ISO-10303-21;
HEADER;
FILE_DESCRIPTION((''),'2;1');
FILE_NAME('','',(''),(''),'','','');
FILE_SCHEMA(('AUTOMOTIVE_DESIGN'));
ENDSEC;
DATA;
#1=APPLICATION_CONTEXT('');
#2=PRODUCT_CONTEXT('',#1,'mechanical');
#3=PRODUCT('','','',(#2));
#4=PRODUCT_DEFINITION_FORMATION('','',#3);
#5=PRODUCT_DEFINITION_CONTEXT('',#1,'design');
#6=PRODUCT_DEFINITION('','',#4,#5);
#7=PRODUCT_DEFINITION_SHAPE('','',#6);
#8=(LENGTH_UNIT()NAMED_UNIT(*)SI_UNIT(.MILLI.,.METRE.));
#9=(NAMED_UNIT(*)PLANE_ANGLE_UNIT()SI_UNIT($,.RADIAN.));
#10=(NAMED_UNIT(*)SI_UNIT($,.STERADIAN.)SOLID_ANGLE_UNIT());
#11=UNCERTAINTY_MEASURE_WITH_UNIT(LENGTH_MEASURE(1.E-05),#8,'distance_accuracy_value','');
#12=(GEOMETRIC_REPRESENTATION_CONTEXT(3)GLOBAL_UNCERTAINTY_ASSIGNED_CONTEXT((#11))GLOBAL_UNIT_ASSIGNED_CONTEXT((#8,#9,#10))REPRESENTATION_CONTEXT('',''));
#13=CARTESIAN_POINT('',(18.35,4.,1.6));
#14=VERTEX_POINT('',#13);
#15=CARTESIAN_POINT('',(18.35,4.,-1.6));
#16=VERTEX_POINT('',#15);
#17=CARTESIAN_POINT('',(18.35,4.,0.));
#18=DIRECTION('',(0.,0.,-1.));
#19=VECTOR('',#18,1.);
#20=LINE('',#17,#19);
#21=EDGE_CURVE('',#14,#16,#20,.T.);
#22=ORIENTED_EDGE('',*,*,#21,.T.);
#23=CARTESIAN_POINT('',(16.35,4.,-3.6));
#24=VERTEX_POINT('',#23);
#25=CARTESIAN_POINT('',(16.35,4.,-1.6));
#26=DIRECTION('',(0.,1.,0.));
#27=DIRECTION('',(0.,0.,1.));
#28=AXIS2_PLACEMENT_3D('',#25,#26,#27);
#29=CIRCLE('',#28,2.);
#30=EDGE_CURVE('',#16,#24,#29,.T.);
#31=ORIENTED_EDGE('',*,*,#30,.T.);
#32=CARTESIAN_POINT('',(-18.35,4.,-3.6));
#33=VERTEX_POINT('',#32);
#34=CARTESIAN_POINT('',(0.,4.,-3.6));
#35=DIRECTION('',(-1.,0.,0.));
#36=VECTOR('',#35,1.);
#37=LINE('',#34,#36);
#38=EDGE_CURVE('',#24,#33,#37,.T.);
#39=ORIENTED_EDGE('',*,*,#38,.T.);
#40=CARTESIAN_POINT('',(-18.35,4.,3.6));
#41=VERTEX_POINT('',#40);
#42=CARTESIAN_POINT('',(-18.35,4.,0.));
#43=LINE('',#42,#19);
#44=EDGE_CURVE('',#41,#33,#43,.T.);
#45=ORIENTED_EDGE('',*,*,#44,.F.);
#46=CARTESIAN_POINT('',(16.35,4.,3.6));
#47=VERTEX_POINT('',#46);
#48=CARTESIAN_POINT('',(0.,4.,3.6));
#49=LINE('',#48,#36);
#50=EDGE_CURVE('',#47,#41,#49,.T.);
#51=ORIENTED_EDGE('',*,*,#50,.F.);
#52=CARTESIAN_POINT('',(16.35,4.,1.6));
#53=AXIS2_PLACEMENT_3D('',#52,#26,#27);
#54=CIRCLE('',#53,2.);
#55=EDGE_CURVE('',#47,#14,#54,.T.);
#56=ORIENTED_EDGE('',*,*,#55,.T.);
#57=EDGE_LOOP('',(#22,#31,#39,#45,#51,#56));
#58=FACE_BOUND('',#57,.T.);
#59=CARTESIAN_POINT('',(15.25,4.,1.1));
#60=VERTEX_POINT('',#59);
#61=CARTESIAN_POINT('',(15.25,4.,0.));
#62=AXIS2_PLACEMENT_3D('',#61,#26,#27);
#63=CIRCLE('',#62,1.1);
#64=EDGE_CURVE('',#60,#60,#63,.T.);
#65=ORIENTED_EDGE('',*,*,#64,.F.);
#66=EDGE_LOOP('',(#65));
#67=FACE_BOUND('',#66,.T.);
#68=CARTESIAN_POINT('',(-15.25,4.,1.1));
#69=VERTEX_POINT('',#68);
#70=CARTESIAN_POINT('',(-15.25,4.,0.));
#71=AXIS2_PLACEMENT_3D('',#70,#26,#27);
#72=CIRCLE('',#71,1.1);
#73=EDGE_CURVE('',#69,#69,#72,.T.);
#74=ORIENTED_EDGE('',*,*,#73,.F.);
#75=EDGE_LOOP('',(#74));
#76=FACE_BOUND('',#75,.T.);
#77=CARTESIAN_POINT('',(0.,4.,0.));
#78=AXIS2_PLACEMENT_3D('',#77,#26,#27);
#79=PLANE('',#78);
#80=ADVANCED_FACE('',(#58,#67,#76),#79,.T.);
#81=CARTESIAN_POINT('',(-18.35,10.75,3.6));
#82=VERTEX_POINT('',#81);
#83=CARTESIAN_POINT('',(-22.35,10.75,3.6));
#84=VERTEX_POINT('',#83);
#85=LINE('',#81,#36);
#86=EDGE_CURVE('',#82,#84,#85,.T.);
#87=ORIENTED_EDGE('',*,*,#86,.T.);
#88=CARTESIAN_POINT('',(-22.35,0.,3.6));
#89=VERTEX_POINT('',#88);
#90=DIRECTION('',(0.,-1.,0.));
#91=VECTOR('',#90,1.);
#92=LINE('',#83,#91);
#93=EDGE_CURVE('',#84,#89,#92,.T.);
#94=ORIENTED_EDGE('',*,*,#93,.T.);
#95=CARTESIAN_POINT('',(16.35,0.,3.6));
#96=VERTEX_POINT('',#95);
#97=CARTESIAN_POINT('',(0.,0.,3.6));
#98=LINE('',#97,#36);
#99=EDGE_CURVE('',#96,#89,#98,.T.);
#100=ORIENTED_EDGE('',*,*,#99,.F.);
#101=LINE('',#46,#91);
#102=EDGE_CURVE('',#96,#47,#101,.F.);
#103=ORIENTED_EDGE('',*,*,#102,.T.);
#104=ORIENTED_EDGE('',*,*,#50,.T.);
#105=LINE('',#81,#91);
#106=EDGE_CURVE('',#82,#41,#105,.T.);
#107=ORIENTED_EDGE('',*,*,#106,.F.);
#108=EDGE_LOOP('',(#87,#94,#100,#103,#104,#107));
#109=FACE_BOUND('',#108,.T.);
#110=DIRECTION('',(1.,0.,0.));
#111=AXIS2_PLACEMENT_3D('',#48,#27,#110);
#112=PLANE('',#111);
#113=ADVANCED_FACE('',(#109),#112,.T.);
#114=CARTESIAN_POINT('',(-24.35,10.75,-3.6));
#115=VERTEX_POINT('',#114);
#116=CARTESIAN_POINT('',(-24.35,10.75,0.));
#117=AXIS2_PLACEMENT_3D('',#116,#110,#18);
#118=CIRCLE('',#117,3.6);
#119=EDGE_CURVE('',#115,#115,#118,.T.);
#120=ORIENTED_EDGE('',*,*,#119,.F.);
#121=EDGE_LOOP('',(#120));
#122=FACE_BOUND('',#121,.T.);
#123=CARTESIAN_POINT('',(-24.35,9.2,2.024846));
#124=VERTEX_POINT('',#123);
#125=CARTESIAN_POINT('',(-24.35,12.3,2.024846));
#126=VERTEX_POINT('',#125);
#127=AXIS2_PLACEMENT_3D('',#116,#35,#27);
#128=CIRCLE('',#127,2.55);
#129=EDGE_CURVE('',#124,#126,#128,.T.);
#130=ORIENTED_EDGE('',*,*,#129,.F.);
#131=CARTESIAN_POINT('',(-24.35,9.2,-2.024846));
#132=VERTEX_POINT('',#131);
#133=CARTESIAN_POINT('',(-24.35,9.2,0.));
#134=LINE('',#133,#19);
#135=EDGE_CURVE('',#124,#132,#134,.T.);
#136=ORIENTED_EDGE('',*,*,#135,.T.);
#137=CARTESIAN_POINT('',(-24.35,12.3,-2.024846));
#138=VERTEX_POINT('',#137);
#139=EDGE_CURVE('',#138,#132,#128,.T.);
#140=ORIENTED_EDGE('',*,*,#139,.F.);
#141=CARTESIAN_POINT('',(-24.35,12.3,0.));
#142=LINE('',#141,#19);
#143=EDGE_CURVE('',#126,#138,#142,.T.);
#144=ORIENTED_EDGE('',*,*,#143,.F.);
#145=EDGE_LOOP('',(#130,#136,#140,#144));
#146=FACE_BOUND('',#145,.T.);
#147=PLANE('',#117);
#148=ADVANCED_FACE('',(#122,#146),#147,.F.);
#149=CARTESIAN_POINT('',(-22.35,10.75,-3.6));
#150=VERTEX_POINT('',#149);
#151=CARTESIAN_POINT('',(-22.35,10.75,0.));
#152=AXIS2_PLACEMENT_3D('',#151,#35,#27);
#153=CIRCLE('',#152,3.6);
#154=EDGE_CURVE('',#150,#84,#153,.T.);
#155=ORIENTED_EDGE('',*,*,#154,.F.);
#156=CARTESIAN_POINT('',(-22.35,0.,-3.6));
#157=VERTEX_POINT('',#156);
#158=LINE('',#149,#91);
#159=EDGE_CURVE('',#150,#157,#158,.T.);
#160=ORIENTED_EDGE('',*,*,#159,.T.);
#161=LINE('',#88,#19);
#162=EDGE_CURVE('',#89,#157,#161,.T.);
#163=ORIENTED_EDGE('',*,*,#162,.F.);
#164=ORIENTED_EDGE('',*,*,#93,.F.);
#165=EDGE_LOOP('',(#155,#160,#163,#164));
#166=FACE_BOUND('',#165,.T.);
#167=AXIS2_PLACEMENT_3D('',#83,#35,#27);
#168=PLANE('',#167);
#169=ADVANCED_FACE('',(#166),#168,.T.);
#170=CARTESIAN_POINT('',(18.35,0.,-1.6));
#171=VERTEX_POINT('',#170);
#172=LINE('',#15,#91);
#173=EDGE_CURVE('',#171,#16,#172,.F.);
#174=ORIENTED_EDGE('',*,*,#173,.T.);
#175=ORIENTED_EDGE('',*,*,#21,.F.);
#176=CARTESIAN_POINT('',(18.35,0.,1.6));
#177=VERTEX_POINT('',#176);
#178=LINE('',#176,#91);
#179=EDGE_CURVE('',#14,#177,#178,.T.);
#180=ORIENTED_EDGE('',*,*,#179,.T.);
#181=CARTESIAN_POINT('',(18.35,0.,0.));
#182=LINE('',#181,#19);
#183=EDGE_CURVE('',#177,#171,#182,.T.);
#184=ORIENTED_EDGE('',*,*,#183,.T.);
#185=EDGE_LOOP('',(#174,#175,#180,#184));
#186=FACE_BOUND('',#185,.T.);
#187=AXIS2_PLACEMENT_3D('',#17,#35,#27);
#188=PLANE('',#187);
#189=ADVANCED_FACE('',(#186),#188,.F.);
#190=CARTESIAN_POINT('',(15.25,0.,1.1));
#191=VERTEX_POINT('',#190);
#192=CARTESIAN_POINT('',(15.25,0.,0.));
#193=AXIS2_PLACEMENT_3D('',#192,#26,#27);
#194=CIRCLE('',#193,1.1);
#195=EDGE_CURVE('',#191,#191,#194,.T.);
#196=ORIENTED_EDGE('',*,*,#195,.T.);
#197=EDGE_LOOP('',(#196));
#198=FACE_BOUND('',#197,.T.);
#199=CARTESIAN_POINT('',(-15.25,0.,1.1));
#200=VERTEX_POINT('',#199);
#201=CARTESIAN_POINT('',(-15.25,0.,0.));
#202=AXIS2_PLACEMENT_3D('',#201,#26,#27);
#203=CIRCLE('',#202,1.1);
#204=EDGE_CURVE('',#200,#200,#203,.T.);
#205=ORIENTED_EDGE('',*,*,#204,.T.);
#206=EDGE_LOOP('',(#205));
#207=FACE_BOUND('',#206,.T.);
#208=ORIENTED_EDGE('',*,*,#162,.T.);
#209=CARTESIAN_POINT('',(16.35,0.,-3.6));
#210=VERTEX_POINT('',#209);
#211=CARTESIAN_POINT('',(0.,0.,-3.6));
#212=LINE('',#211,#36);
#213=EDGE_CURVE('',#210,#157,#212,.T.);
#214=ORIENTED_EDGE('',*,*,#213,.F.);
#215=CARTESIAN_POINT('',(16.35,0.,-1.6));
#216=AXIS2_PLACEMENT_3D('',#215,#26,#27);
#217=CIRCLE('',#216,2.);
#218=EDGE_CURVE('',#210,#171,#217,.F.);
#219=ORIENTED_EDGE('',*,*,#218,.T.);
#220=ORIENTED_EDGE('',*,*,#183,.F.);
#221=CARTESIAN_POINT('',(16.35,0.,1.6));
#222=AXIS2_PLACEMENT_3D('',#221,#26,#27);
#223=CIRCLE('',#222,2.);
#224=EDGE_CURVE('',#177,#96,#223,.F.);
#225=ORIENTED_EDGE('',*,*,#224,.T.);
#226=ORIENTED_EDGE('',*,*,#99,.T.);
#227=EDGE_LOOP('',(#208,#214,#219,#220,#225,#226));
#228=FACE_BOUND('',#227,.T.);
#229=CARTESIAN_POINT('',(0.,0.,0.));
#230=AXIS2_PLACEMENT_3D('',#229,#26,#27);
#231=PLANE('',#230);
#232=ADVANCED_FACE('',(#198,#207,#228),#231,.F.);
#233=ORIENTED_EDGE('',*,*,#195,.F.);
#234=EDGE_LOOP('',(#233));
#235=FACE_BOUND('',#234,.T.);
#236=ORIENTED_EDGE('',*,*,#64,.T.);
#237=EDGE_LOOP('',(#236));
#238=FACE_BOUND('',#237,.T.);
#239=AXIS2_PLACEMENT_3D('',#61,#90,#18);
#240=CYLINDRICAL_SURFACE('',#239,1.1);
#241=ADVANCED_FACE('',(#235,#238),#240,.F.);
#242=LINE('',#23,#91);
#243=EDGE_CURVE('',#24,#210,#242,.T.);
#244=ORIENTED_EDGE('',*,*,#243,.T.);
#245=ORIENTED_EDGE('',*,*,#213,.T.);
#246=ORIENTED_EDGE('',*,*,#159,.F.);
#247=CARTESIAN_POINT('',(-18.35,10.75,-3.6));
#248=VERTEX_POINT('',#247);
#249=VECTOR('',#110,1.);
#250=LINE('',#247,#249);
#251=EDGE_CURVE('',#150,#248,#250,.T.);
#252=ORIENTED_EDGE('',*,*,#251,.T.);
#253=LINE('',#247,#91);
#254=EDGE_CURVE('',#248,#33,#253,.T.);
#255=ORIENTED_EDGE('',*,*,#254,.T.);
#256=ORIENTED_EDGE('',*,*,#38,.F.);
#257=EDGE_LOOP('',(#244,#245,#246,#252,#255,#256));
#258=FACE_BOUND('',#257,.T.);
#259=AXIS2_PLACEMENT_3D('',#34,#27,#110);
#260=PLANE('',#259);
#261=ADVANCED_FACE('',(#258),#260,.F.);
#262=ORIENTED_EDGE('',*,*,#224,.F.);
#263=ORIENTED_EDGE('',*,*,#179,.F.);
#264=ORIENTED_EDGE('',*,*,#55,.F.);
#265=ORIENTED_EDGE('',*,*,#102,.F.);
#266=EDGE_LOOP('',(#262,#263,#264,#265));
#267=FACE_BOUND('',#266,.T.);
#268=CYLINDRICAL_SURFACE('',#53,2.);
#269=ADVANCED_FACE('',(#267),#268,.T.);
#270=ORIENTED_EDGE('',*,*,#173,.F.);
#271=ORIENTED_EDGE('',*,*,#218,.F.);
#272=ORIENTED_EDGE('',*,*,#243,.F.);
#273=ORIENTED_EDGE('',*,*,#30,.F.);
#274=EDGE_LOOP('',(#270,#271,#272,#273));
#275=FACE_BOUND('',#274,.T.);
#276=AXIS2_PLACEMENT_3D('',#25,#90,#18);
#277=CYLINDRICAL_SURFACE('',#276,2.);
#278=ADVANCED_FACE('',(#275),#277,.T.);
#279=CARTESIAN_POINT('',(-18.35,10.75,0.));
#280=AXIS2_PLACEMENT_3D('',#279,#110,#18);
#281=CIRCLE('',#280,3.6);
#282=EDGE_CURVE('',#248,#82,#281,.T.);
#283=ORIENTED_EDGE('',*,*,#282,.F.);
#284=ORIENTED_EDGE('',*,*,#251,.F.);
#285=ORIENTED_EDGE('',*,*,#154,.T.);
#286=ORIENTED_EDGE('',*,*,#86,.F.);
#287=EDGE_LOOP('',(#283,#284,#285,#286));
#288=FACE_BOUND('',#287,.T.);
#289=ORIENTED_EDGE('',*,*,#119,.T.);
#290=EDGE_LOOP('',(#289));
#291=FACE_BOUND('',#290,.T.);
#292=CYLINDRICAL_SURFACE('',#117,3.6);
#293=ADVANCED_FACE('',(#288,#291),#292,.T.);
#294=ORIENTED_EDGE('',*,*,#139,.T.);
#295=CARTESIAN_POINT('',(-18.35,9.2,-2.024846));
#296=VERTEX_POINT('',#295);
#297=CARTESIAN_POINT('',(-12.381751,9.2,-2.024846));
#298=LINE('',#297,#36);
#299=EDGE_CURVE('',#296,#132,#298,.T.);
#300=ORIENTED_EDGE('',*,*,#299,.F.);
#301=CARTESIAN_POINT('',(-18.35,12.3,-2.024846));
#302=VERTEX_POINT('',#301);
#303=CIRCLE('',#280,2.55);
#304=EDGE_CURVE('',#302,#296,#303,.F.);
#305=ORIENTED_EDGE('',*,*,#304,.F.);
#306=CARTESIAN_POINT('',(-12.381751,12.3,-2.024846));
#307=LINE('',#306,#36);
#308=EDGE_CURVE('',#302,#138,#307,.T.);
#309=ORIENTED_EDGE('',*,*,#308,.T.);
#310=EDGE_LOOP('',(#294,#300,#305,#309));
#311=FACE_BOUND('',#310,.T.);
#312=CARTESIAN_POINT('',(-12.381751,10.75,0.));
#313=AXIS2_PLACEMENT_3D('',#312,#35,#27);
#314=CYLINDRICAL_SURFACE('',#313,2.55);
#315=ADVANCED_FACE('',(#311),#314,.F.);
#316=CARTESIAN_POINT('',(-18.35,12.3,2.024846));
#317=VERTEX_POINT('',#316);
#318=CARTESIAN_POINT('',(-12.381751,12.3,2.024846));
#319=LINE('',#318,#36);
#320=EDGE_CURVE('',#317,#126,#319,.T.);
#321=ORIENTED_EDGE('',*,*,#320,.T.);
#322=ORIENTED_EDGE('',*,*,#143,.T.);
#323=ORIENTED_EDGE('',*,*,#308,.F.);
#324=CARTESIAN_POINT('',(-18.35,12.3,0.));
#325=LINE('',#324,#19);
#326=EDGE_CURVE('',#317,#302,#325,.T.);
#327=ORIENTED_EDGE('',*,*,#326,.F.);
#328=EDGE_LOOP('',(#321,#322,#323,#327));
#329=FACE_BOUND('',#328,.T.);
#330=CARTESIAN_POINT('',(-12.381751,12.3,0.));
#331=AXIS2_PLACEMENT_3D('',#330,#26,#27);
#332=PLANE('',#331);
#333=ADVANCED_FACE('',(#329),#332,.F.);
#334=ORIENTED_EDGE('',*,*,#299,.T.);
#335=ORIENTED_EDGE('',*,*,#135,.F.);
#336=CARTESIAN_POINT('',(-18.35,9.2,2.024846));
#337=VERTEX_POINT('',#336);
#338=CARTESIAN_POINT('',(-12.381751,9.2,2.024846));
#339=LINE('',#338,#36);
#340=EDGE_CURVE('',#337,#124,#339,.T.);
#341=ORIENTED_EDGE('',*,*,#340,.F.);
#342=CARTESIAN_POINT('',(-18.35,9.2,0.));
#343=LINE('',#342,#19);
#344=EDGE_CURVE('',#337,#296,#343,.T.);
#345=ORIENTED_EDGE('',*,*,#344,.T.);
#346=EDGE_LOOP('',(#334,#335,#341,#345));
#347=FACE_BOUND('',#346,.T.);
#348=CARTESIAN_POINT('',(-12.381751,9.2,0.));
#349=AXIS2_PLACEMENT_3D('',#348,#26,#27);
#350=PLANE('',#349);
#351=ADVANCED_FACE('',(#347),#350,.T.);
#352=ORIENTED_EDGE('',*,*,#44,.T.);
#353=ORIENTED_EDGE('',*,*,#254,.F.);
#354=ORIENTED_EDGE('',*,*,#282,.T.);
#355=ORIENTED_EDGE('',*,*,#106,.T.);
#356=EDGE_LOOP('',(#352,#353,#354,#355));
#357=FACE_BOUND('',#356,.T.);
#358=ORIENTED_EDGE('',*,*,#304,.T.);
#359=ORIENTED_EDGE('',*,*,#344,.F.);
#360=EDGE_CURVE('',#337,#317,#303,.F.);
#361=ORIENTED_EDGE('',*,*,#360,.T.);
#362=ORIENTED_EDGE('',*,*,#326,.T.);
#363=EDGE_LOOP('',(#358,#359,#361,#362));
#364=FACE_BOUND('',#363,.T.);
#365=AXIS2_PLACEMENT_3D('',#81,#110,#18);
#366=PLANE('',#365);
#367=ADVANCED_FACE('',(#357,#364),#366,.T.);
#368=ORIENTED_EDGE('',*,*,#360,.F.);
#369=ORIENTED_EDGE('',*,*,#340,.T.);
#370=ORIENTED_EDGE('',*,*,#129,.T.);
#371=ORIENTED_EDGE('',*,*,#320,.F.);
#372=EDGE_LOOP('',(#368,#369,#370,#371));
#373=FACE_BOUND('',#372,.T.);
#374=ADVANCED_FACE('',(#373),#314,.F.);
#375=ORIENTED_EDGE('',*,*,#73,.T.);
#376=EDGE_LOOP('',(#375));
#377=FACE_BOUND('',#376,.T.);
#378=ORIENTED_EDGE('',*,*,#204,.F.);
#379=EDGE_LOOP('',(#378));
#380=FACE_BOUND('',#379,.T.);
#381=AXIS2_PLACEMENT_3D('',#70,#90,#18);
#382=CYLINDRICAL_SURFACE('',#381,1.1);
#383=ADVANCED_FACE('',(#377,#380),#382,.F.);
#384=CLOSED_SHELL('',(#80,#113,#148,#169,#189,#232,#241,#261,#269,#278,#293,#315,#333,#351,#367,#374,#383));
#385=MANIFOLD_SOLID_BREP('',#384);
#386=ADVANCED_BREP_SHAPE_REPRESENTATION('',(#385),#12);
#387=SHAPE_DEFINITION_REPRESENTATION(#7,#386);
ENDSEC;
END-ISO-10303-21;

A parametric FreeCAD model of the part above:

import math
import FreeCAD as App
import Part
import Sketcher
Q = App.Units.Quantity


def edges_at(feature, points):
    """Names of the edges that pass closest to the given points."""
    edges = feature.Shape.Edges
    near = lambda p: min(range(len(edges)), key=lambda i: edges[i].distToShape(Part.Vertex(*p))[0])
    return sorted({f"Edge{near(p) + 1}" for p in points})

doc = App.newDocument("Part")
body = doc.addObject("PartDesign::Body", "Body")

sketch1 = doc.addObject("Sketcher::SketchObject", "Sketch")
body.addObject(sketch1)
sketch1.AttachmentSupport = (doc.XZ_Plane, [""])
sketch1.MapMode = "FlatFace"
sketch1.addGeometry(Part.LineSegment(App.Vector(-18.4, -3.6, 0), App.Vector(-18.4, 3.6, 0)), False)
sketch1.addGeometry(Part.LineSegment(App.Vector(-18.4, 3.6, 0), App.Vector(18.4, 3.6, 0)), False)
sketch1.addGeometry(Part.LineSegment(App.Vector(18.4, 3.6, 0), App.Vector(18.4, -3.6, 0)), False)
sketch1.addGeometry(Part.LineSegment(App.Vector(18.4, -3.6, 0), App.Vector(-18.4, -3.6, 0)), False)
sketch1.addGeometry(Part.Circle(App.Vector(-15.2, 0, 0), App.Vector(0, 0, 1), 1.1), False)
sketch1.addGeometry(Part.Circle(App.Vector(15.2, 0, 0), App.Vector(0, 0, 1), 1.1), False)
sketch1.addConstraint(Sketcher.Constraint("Coincident", 0, 2, 1, 1))
sketch1.addConstraint(Sketcher.Constraint("Coincident", 1, 2, 2, 1))
sketch1.addConstraint(Sketcher.Constraint("Coincident", 2, 2, 3, 1))
sketch1.addConstraint(Sketcher.Constraint("Coincident", 3, 2, 0, 1))
sketch1.addConstraint(Sketcher.Constraint("Vertical", 0))
sketch1.addConstraint(Sketcher.Constraint("Horizontal", 1))
sketch1.addConstraint(Sketcher.Constraint("Vertical", 2))
sketch1.addConstraint(Sketcher.Constraint("Horizontal", 3))
sketch1.addConstraint(Sketcher.Constraint("Equal", 4, 5))
sketch1.addConstraint(Sketcher.Constraint("Symmetric", 4, 3, 5, 3, -1, 1))
sketch1.addConstraint(Sketcher.Constraint("Symmetric", 0, 2, 2, 2, -1, 1))
sketch1.addConstraint(Sketcher.Constraint("PointOnObject", 4, 3, -1))
sketch1.addConstraint(Sketcher.Constraint("Diameter", 4, Q("2.2 mm")))
sketch1.addConstraint(Sketcher.Constraint("DistanceX", 1, 1, 1, 2, Q("36.7 mm")))
sketch1.addConstraint(Sketcher.Constraint("DistanceY", 0, 1, 0, 2, Q("7.2 mm")))
sketch1.addConstraint(Sketcher.Constraint("DistanceX", 4, 3, 5, 3, Q("30.5 mm")))
pad1 = doc.addObject("PartDesign::Pad", "Pad")
body.addObject(pad1)
pad1.Profile = sketch1
pad1.Length = 4
pad1.Reversed = True

sketch2 = doc.addObject("Sketcher::SketchObject", "Sketch001")
body.addObject(sketch2)
sketch2.AttachmentSupport = (doc.XZ_Plane, [""])
sketch2.MapMode = "FlatFace"
sketch2.addGeometry(Part.LineSegment(App.Vector(-22.4, 3.6, 0), App.Vector(-22.4, -3.6, 0)), False)
sketch2.addGeometry(Part.LineSegment(App.Vector(-22.4, -3.6, 0), App.Vector(-18.4, -3.6, 0)), False)
sketch2.addGeometry(Part.LineSegment(App.Vector(-18.4, -3.6, 0), App.Vector(-18.4, 3.6, 0)), False)
sketch2.addGeometry(Part.LineSegment(App.Vector(-18.4, 3.6, 0), App.Vector(-22.4, 3.6, 0)), False)
sketch2.addConstraint(Sketcher.Constraint("Coincident", 0, 2, 1, 1))
sketch2.addConstraint(Sketcher.Constraint("Coincident", 1, 2, 2, 1))
sketch2.addConstraint(Sketcher.Constraint("Coincident", 2, 2, 3, 1))
sketch2.addConstraint(Sketcher.Constraint("Coincident", 3, 2, 0, 1))
sketch2.addConstraint(Sketcher.Constraint("Vertical", 0))
sketch2.addConstraint(Sketcher.Constraint("Horizontal", 1))
sketch2.addConstraint(Sketcher.Constraint("Vertical", 2))
sketch2.addConstraint(Sketcher.Constraint("Horizontal", 3))
sketch2.addConstraint(Sketcher.Constraint("DistanceX", 1, 1, 1, 2, Q("4 mm")))
sketch2.addConstraint(Sketcher.Constraint("DistanceY", 0, 2, 0, 1, Q("7.2 mm")))
sketch2.addConstraint(Sketcher.Constraint("DistanceY", 0, 2, -1, 1, Q("3.6 mm")))
sketch2.addConstraint(Sketcher.Constraint("DistanceX", 0, 2, -1, 1, Q("22.35 mm")))
pad2 = doc.addObject("PartDesign::Pad", "Pad001")
body.addObject(pad2)
pad2.Profile = sketch2
pad2.Length = 10.75
pad2.Reversed = True

sketch3 = doc.addObject("Sketcher::SketchObject", "Sketch002")
body.addObject(sketch3)
sketch3.AttachmentSupport = (doc.YZ_Plane, [""])
sketch3.MapMode = "FlatFace"
sketch3.AttachmentOffset = App.Placement(App.Vector(0, 0, -18.35), App.Rotation())
sketch3.addGeometry(Part.Circle(App.Vector(10.8, 0, 0), App.Vector(0, 0, 1), 3.6), False)
sketch3.addConstraint(Sketcher.Constraint("PointOnObject", 0, 3, -1))
sketch3.addConstraint(Sketcher.Constraint("Diameter", 0, Q("7.2 mm")))
sketch3.addConstraint(Sketcher.Constraint("DistanceX", -1, 1, 0, 3, Q("10.75 mm")))
pad3 = doc.addObject("PartDesign::Pad", "Pad002")
body.addObject(pad3)
pad3.Profile = sketch3
pad3.Length = 6
pad3.Reversed = True
doc.recompute()

fillet = doc.addObject("PartDesign::Fillet", "Fillet")
body.addObject(fillet)
fillet.Base = (pad3, edges_at(pad3, [(18.35, 2, -3.6), (18.35, 2, 3.6)]))
fillet.Radius = 2

sketch4 = doc.addObject("Sketcher::SketchObject", "Sketch003")
body.addObject(sketch4)
sketch4.AttachmentSupport = (doc.YZ_Plane, [""])
sketch4.MapMode = "FlatFace"
sketch4.AttachmentOffset = App.Placement(App.Vector(0, 0, -24.35), App.Rotation())
sketch4.addGeometry(Part.ArcOfCircle(Part.Circle(App.Vector(10.8, 0, 0), App.Vector(0, 0, 1), 2.5), math.radians(-127), math.radians(-53)), False)
sketch4.addGeometry(Part.LineSegment(App.Vector(9.2, -2, 0), App.Vector(9.2, 2, 0)), False)
sketch4.addGeometry(Part.ArcOfCircle(Part.Circle(App.Vector(10.7, 0, 0), App.Vector(0, 0, 1), 2.5), math.radians(90), math.radians(127)), False)
sketch4.addGeometry(Part.ArcOfCircle(Part.Circle(App.Vector(10.8, 0, 0), App.Vector(0, 0, 1), 2.5), math.radians(53), math.radians(90)), False)
sketch4.addGeometry(Part.LineSegment(App.Vector(12.3, 2, 0), App.Vector(12.3, -2, 0)), False)
sketch4.addConstraint(Sketcher.Constraint("Coincident", 0, 1, 1, 1))
sketch4.addConstraint(Sketcher.Constraint("Coincident", 1, 2, 2, 2))
sketch4.addConstraint(Sketcher.Constraint("Tangent", 2, 1, 3, 2))
sketch4.addConstraint(Sketcher.Constraint("Coincident", 3, 1, 4, 1))
sketch4.addConstraint(Sketcher.Constraint("Coincident", 4, 2, 0, 2))
sketch4.addConstraint(Sketcher.Constraint("Vertical", 1))
sketch4.addConstraint(Sketcher.Constraint("Vertical", 4))
sketch4.addConstraint(Sketcher.Constraint("Coincident", 2, 3, 0, 3))
sketch4.addConstraint(Sketcher.Constraint("Equal", 0, 2))
sketch4.addConstraint(Sketcher.Constraint("Equal", 2, 3))
sketch4.addConstraint(Sketcher.Constraint("PointOnObject", 0, 3, -1))
sketch4.addConstraint(Sketcher.Constraint("Horizontal", 1, 2, 3, 1))
sketch4.addConstraint(Sketcher.Constraint("Vertical", 3, 3, 2, 1))
sketch4.addConstraint(Sketcher.Constraint("Radius", 0, Q("2.55 mm")))
sketch4.addConstraint(Sketcher.Constraint("DistanceX", -1, 1, 0, 1, Q("9.2 mm")))
sketch4.addConstraint(Sketcher.Constraint("DistanceX", -1, 1, 3, 1, Q("12.3 mm")))
pocket1 = doc.addObject("PartDesign::Pocket", "Pocket")
body.addObject(pocket1)
pocket1.Profile = sketch4
pocket1.Length = 6
pocket1.Reversed = True

doc.recompute()
